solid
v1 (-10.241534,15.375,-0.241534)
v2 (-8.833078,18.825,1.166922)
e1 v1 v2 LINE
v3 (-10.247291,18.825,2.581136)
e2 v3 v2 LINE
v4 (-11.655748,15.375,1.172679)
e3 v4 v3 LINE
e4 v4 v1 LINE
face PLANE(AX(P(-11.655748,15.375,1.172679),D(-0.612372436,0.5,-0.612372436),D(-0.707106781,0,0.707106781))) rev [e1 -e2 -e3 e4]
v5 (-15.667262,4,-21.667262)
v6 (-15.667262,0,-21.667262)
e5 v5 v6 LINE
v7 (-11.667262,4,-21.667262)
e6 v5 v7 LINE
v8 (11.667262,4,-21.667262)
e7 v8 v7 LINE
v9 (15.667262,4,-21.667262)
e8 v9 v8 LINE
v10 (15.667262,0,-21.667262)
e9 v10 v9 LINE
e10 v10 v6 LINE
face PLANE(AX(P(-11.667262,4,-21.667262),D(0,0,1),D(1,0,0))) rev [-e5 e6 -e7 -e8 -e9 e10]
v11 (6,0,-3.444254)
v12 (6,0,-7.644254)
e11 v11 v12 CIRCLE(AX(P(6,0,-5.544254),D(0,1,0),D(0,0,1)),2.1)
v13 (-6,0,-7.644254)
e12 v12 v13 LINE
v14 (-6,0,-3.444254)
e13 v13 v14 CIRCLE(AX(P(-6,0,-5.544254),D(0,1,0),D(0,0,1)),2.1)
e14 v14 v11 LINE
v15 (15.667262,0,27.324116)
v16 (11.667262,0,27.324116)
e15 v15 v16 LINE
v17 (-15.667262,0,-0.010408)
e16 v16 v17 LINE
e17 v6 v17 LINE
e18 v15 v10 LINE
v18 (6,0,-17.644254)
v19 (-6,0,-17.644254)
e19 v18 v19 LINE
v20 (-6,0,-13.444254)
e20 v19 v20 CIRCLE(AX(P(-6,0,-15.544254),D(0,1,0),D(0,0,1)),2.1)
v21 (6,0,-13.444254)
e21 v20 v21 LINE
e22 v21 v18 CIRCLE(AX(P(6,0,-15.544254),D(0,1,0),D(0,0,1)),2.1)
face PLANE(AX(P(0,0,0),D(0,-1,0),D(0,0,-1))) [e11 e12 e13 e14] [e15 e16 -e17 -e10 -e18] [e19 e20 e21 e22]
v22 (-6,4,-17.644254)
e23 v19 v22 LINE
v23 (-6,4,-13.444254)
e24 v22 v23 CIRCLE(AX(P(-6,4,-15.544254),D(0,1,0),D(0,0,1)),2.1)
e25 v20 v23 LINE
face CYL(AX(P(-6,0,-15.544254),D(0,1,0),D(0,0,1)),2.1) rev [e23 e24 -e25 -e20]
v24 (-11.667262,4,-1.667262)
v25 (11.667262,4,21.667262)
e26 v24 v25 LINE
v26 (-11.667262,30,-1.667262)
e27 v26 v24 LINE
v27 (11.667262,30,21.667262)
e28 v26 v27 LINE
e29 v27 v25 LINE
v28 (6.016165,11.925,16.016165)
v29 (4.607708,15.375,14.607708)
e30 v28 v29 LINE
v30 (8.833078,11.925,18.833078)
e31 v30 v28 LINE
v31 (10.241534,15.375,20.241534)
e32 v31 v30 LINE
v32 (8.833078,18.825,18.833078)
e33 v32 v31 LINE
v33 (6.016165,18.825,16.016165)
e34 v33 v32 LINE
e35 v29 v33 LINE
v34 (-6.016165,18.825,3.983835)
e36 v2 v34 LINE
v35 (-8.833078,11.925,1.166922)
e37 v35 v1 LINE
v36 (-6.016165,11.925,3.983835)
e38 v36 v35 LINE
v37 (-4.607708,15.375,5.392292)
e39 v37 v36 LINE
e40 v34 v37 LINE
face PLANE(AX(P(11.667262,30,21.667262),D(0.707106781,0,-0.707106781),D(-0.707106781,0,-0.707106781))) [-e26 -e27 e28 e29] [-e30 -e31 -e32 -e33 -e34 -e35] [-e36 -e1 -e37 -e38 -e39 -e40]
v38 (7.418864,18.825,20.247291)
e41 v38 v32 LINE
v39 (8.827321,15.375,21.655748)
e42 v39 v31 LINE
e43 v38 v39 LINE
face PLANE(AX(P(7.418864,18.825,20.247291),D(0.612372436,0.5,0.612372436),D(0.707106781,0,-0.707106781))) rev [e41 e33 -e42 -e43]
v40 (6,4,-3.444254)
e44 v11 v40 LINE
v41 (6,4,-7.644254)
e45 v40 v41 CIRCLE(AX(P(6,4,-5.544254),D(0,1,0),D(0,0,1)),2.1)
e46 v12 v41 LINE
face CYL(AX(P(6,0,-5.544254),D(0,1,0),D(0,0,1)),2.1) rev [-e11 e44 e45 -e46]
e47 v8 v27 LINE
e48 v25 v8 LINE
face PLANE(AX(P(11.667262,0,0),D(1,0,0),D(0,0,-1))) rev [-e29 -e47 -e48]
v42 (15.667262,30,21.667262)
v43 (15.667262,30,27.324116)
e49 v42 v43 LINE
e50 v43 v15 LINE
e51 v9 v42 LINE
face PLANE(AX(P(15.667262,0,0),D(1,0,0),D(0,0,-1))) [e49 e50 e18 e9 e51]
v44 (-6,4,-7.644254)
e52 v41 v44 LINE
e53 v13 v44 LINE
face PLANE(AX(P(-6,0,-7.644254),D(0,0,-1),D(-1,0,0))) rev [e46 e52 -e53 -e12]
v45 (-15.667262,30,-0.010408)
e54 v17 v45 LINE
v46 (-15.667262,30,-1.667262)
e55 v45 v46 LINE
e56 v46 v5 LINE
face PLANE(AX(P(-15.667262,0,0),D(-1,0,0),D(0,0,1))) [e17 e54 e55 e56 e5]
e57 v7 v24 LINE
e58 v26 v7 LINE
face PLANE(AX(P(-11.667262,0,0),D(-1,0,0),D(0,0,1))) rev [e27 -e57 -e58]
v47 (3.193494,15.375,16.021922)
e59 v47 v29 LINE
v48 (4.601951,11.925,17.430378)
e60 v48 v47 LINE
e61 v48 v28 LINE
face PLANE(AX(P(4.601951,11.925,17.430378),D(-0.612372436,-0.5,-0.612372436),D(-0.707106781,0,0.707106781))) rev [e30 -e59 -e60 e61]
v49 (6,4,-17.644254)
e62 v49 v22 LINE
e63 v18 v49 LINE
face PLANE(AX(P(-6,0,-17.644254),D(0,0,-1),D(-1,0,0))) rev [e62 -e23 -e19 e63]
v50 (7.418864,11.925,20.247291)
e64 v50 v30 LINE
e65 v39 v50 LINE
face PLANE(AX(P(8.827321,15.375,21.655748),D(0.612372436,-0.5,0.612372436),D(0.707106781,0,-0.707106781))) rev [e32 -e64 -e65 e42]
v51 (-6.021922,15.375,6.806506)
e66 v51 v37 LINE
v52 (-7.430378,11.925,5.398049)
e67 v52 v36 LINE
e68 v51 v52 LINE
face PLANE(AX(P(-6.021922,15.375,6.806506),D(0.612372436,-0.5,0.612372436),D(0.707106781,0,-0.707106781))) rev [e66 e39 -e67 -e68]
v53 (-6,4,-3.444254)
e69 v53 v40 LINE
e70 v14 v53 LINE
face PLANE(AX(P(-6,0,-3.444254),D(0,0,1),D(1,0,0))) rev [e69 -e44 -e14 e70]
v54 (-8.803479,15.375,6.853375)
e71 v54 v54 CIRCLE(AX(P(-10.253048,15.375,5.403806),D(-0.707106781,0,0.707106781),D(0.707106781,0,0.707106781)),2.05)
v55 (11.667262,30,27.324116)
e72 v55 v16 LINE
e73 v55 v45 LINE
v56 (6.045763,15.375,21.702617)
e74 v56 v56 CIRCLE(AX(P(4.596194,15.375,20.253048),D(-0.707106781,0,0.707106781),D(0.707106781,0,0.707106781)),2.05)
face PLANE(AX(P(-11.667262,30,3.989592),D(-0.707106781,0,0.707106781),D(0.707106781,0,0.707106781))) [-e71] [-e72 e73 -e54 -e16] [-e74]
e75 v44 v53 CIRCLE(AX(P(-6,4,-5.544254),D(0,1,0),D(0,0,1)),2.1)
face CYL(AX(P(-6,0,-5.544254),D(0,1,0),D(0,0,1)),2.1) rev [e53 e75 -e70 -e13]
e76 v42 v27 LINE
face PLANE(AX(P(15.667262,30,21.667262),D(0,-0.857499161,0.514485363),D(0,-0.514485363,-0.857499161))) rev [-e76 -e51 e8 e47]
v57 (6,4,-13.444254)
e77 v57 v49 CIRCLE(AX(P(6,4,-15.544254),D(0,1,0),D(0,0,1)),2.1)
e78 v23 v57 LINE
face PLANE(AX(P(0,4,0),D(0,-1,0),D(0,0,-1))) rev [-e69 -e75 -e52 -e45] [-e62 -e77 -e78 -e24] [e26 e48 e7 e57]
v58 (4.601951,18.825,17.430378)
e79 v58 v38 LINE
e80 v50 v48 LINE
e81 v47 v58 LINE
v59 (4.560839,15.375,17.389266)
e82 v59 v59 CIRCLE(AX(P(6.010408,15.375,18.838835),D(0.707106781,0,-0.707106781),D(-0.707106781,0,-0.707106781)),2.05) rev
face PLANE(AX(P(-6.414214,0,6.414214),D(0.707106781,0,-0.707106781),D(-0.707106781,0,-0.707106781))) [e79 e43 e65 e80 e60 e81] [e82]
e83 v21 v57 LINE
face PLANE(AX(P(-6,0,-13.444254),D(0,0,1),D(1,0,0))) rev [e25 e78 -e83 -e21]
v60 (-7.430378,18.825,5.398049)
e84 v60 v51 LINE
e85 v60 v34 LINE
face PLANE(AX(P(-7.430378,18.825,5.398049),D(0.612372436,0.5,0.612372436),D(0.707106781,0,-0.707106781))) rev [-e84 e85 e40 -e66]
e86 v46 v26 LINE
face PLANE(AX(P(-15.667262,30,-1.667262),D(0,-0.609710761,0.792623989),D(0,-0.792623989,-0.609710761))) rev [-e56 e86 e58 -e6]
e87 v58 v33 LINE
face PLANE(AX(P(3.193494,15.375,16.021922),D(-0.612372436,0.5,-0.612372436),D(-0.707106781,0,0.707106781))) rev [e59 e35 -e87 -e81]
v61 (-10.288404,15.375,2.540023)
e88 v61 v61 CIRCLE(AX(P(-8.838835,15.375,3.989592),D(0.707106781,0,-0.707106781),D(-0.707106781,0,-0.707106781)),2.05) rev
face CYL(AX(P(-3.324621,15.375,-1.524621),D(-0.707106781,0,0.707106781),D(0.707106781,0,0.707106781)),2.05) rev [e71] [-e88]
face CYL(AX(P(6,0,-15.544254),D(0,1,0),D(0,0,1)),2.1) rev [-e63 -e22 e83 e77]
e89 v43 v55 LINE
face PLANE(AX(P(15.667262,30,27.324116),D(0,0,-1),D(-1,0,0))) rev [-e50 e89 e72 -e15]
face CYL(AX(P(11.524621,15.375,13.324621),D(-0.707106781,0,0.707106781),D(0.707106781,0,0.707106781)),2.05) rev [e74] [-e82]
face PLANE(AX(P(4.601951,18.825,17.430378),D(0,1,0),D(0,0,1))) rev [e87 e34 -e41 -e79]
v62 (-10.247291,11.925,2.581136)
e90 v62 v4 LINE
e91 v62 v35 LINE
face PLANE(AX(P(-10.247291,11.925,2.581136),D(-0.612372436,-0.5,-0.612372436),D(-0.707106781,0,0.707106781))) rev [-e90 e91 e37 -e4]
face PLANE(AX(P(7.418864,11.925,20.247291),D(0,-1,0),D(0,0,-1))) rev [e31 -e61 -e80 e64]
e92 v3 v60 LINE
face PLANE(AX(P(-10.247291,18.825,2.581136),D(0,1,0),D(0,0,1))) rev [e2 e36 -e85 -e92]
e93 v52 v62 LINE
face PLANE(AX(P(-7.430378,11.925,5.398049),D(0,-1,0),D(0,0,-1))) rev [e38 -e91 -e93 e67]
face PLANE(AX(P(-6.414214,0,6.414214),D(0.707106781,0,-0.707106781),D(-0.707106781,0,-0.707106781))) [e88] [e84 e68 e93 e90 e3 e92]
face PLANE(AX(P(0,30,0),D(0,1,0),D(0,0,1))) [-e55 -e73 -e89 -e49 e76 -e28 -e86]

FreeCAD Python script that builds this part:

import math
import FreeCAD as App
import Part
import Sketcher
Q = App.Units.Quantity


def add_polygon(sketch, points):
    """Adds a closed chain of lines whose ends are joined by coincident constraints."""
    first, n = sketch.GeometryCount, len(points)
    for a, b in zip(points, points[1:] + points[:1]):
        sketch.addGeometry(Part.LineSegment(App.Vector(*a, 0), App.Vector(*b, 0)), False)
    for i in range(n):
        sketch.addConstraint(Sketcher.Constraint("Coincident", first + i, 2, first + (i + 1) % n, 1))

doc = App.newDocument("Part")
body = doc.addObject("PartDesign::Body", "Body")

sketch1 = body.newObject("Sketcher::SketchObject", "Sketch")
sketch1.AttachmentSupport = (doc.getObject("XZ_Plane"), [""])
sketch1.MapMode = "FlatFace"
add_polygon(sketch1, [(-11.667262, -1.667262), (11.667262, 21.667262), (11.667262, -21.667262), (-11.667262, -21.667262)])
sketch1.addConstraint([
    Sketcher.Constraint("Vertical", 1),
    Sketcher.Constraint("Horizontal", 2),
    Sketcher.Constraint("Vertical", 3),
    Sketcher.Constraint("Symmetric", 0, 2, 2, 2, -1, 1),
    Sketcher.Constraint("DistanceY", 3, 1, 3, 2, 20.0),
    Sketcher.Constraint("Angle", 0, Q("45 deg")),
    Sketcher.Constraint("Distance", 0, 33.0),
])
pad1 = body.newObject("PartDesign::Pad", "Pad")
pad1.Profile = sketch1
pad1.Length = 4
pad1.Reversed = True

sketch2 = body.newObject("Sketcher::SketchObject", "Sketch001")
sketch2.AttachmentSupport = (doc.getObject("XZ_Plane"), [""])
sketch2.MapMode = "FlatFace"
add_polygon(sketch2, [(-11.667262, 3.989592), (-11.667262, -1.667262), (11.667262, 21.667262), (11.667262, 27.324116)])
sketch2.addConstraint([
    Sketcher.Constraint("Vertical", 0),
    Sketcher.Constraint("Vertical", 2),
    Sketcher.Constraint("Parallel", 1, 3),
    Sketcher.Constraint("Angle", 1, Q("45 deg")),
    Sketcher.Constraint("Distance", 1, 33.0),
    Sketcher.Constraint("DistanceY", 0, 2, 0, 1, 5.656854),
    Sketcher.Constraint("DistanceX", 0, 2, -1, 1, 11.667262),
    Sketcher.Constraint("DistanceY", 0, 2, -1, 1, 1.667262),
])
pad2 = body.newObject("PartDesign::Pad", "Pad001")
pad2.Profile = sketch2
pad2.Length = 30
pad2.Reversed = True

sketch3 = body.newObject("Sketcher::SketchObject", "Sketch002")
sketch3.AttachmentSupport = (doc.getObject("YZ_Plane"), [""])
sketch3.MapMode = "FlatFace"
sketch3.AttachmentOffset = App.Placement(App.Vector(0, 0, 11.667262), App.Rotation())
add_polygon(sketch3, [(4, -21.667262), (30, 21.667262), (30, 27.324116), (0, 27.324116), (0, -21.667262)])
sketch3.addConstraint([
    Sketcher.Constraint("Vertical", 1),
    Sketcher.Constraint("Horizontal", 2),
    Sketcher.Constraint("Vertical", 3),
    Sketcher.Constraint("Horizontal", 4),
    Sketcher.Constraint("PointOnObject", 2, 2, -2),
    Sketcher.Constraint("DistanceX", 2, 2, 2, 1, 30.0),
    Sketcher.Constraint("DistanceX", 4, 1, 4, 2, 4.0),
    Sketcher.Constraint("DistanceY", 3, 2, 3, 1, 48.991378),
    Sketcher.Constraint("DistanceY", 1, 1, 1, 2, 5.656854),
    Sketcher.Constraint("DistanceY", -1, 1, 0, 2, 21.667262),
])
pad3 = body.newObject("PartDesign::Pad", "Pad002")
pad3.Profile = sketch3
pad3.Length = 4

sketch4 = body.newObject("Sketcher::SketchObject", "Sketch003")
sketch4.AttachmentSupport = (doc.getObject("YZ_Plane"), [""])
sketch4.MapMode = "FlatFace"
sketch4.AttachmentOffset = App.Placement(App.Vector(0, 0, -11.667262), App.Rotation())
add_polygon(sketch4, [(30, -1.667262), (4, -21.667262), (0, -21.667262), (0, 3.989592), (30, 3.989592)])
sketch4.addConstraint([
    Sketcher.Constraint("Horizontal", 1),
    Sketcher.Constraint("Vertical", 2),
    Sketcher.Constraint("Horizontal", 3),
    Sketcher.Constraint("Vertical", 4),
    Sketcher.Constraint("PointOnObject", 1, 2, -2),
    Sketcher.Constraint("DistanceX", 1, 2, 1, 1, 4.0),
    Sketcher.Constraint("DistanceX", 3, 1, 3, 2, 30.0),
    Sketcher.Constraint("DistanceY", 0, 2, 4, 2, 20.0),
    Sketcher.Constraint("DistanceY", 2, 1, 2, 2, 25.656854),
    Sketcher.Constraint("DistanceY", 0, 2, -1, 1, 21.667262),
])
pad4 = body.newObject("PartDesign::Pad", "Pad003")
pad4.Profile = sketch4
pad4.Length = 4
pad4.Reversed = True

sketch5 = body.newObject("Sketcher::SketchObject", "Sketch004")
sketch5.AttachmentSupport = (doc.getObject("XZ_Plane"), [""])
sketch5.MapMode = "FlatFace"
sketch5.AttachmentOffset = App.Placement(App.Vector(0, 0, -30), App.Rotation())
add_polygon(sketch5, [(-11.667262, 3.989592), (-15.667262, -0.010408), (-15.667262, 3.989592)])
sketch5.addConstraint([
    Sketcher.Constraint("Vertical", 1),
    Sketcher.Constraint("Horizontal", 2),
    Sketcher.Constraint("Equal", 2, 1),
    Sketcher.Constraint("DistanceX", 2, 1, 2, 2, 4.0),
    Sketcher.Constraint("DistanceX", 0, 2, -1, 1, 15.667262),
    Sketcher.Constraint("DistanceY", 0, 2, -1, 1, 0.010408),
])
pocket1 = body.newObject("PartDesign::Pocket", "Pocket")
pocket1.Profile = sketch5
pocket1.Type = "ThroughAll"
pocket1.Reversed = True

sketch6 = body.newObject("Sketcher::SketchObject", "Sketch005")
sketch6.Placement = App.Placement(App.Vector(-7.828427, 0, 7.828427), App.Rotation(App.Vector(0.707106781, 0, 0.707106781), App.Vector(0, 0.999999999, 0), App.Vector(-0.707106781, 0, 0.707106781), "ZXY"))
sketch6.addGeometry([
    Part.Circle(App.Vector(-3.428932, 15.375, 0), App.Vector(0, 0, 1), 2.05),
    Part.Circle(App.Vector(17.571068, 15.375, 0), App.Vector(0, 0, 1), 2.05),
], False)
sketch6.addConstraint([
    Sketcher.Constraint("Equal", 0, 1),
    Sketcher.Constraint("Horizontal", 0, 3, 1, 3),
    Sketcher.Constraint("Diameter", 0, 4.1),
    Sketcher.Constraint("DistanceX", 0, 3, 1, 3, 21.0),
    Sketcher.Constraint("DistanceY", -1, 1, 0, 3, 15.375),
    Sketcher.Constraint("DistanceX", 0, 3, -1, 1, 3.428932),
])
pocket2 = body.newObject("PartDesign::Pocket", "Pocket001")
pocket2.Profile = sketch6
pocket2.Length = 4

sketch7 = body.newObject("Sketcher::SketchObject", "Sketch006")
sketch7.AttachmentSupport = (doc.getObject("XZ_Plane"), [""])
sketch7.MapMode = "FlatFace"
sketch7.AttachmentOffset = App.Placement(App.Vector(0, 0, -4), App.Rotation())
sketch7.addGeometry([
    Part.LineSegment(App.Vector(6, -17.644254, 0), App.Vector(-6, -17.644254, 0)),
    Part.ArcOfCircle(Part.Circle(App.Vector(-6, -15.544254, 0), App.Vector(0, 0, 1), 2.1), math.radians(90), math.radians(270)),
    Part.LineSegment(App.Vector(-6, -13.444254, 0), App.Vector(6, -13.444254, 0)),
    Part.ArcOfCircle(Part.Circle(App.Vector(6, -15.544254, 0), App.Vector(0, 0, 1), 2.1), math.radians(-90), math.radians(90)),
    Part.LineSegment(App.Vector(6, -7.644254, 0), App.Vector(-6, -7.644254, 0)),
    Part.ArcOfCircle(Part.Circle(App.Vector(-6, -5.544254, 0), App.Vector(0, 0, 1), 2.1), math.radians(90), math.radians(270)),
    Part.LineSegment(App.Vector(-6, -3.444254, 0), App.Vector(6, -3.444254, 0)),
    Part.ArcOfCircle(Part.Circle(App.Vector(6, -5.544254, 0), App.Vector(0, 0, 1), 2.1), math.radians(-90), math.radians(90)),
], False)
sketch7.addConstraint([
    Sketcher.Constraint("Tangent", 0, 2, 1, 2),
    Sketcher.Constraint("Tangent", 1, 1, 2, 1),
    Sketcher.Constraint("Tangent", 2, 2, 3, 2),
    Sketcher.Constraint("Tangent", 3, 1, 0, 1),
    Sketcher.Constraint("Tangent", 4, 2, 5, 2),
    Sketcher.Constraint("Tangent", 5, 1, 6, 1),
    Sketcher.Constraint("Tangent", 6, 2, 7, 2),
    Sketcher.Constraint("Tangent", 7, 1, 4, 1),
    Sketcher.Constraint("Horizontal", 0),
    Sketcher.Constraint("Horizontal", 2),
    Sketcher.Constraint("Horizontal", 4),
    Sketcher.Constraint("Horizontal", 6),
    Sketcher.Constraint("Equal", 3, 5),
    Sketcher.Constraint("Vertical", 1, 3, 5, 3),
    Sketcher.Constraint("Vertical", 3, 3, 7, 3),
    Sketcher.Constraint("Radius", 1, 2.1),
    Sketcher.Constraint("DistanceX", 0, 2, 0, 1, 12.0),
    Sketcher.Constraint("DistanceX", 1, 3, -1, 1, 6.0),
    Sketcher.Constraint("DistanceY", 1, 3, 5, 3, 10.0),
    Sketcher.Constraint("DistanceY", 1, 3, -1, 1, 15.544254),
])
pocket3 = body.newObject("PartDesign::Pocket", "Pocket002")
pocket3.Profile = sketch7
pocket3.Type = "ThroughAll"
pocket3.Reversed = True

sketch8 = body.newObject("Sketcher::SketchObject", "Sketch007")
sketch8.Placement = App.Placement(App.Vector(-5, 0, 5), App.Rotation(App.Vector(-0.707106781, 0, -0.707106781), App.Vector(0, 0.999999999, 0), App.Vector(0.707106781, 0, -0.707106781), "ZXY"))
add_polygon(sketch8, [(-13.587351, 15.375), (-15.579209, 18.825), (-19.562926, 18.825), (-21.554785, 15.375), (-19.562926, 11.925), (-15.579209, 11.925)])
add_polygon(sketch8, [(-0.554785, 15.375), (1.437074, 11.925), (5.420791, 11.925), (7.412649, 15.375), (5.420791, 18.825), (1.437074, 18.825)])
sketch8.addConstraint([
    Sketcher.Constraint("Horizontal", 1),
    Sketcher.Constraint("Horizontal", 4),
    Sketcher.Constraint("Horizontal", 7),
    Sketcher.Constraint("Horizontal", 10),
    Sketcher.Constraint("Parallel", 0, 3),
    Sketcher.Constraint("Parallel", 2, 5),
    Sketcher.Constraint("Parallel", 3, 6),
    Sketcher.Constraint("Parallel", 5, 8),
    Sketcher.Constraint("Parallel", 6, 9),
    Sketcher.Constraint("Parallel", 8, 11),
    Sketcher.Constraint("Horizontal", 2, 2, 5, 2),
    Sketcher.Constraint("Horizontal", 4, 2, 6, 2),
    Sketcher.Constraint("Horizontal", 5, 2, 8, 2),
    Sketcher.Constraint("Horizontal", 1, 2, 9, 2),
    Sketcher.Constraint("Horizontal", 8, 2, 11, 2),
    Sketcher.Constraint("Vertical", 1, 2, 3, 2),
    Sketcher.Constraint("Vertical", 0, 2, 4, 2),
    Sketcher.Constraint("Equal", 4, 7),
    Sketcher.Constraint("Angle", 0, Q("120 deg")),
    Sketcher.Constraint("DistanceX", 3, 2, 6, 2, 21.0),
    Sketcher.Constraint("DistanceY", 3, 2, 1, 2, 6.9),
    Sketcher.Constraint("DistanceY", -1, 1, 0, 2, 18.825),
    Sketcher.Constraint("DistanceX", 1, 2, 1, 1, 3.983717),
    Sketcher.Constraint("DistanceX", 0, 2, -1, 1, 15.579209),
])
pocket4 = body.newObject("PartDesign::Pocket", "Pocket003")
pocket4.Profile = sketch8
pocket4.Length = 2

doc.recompute()
